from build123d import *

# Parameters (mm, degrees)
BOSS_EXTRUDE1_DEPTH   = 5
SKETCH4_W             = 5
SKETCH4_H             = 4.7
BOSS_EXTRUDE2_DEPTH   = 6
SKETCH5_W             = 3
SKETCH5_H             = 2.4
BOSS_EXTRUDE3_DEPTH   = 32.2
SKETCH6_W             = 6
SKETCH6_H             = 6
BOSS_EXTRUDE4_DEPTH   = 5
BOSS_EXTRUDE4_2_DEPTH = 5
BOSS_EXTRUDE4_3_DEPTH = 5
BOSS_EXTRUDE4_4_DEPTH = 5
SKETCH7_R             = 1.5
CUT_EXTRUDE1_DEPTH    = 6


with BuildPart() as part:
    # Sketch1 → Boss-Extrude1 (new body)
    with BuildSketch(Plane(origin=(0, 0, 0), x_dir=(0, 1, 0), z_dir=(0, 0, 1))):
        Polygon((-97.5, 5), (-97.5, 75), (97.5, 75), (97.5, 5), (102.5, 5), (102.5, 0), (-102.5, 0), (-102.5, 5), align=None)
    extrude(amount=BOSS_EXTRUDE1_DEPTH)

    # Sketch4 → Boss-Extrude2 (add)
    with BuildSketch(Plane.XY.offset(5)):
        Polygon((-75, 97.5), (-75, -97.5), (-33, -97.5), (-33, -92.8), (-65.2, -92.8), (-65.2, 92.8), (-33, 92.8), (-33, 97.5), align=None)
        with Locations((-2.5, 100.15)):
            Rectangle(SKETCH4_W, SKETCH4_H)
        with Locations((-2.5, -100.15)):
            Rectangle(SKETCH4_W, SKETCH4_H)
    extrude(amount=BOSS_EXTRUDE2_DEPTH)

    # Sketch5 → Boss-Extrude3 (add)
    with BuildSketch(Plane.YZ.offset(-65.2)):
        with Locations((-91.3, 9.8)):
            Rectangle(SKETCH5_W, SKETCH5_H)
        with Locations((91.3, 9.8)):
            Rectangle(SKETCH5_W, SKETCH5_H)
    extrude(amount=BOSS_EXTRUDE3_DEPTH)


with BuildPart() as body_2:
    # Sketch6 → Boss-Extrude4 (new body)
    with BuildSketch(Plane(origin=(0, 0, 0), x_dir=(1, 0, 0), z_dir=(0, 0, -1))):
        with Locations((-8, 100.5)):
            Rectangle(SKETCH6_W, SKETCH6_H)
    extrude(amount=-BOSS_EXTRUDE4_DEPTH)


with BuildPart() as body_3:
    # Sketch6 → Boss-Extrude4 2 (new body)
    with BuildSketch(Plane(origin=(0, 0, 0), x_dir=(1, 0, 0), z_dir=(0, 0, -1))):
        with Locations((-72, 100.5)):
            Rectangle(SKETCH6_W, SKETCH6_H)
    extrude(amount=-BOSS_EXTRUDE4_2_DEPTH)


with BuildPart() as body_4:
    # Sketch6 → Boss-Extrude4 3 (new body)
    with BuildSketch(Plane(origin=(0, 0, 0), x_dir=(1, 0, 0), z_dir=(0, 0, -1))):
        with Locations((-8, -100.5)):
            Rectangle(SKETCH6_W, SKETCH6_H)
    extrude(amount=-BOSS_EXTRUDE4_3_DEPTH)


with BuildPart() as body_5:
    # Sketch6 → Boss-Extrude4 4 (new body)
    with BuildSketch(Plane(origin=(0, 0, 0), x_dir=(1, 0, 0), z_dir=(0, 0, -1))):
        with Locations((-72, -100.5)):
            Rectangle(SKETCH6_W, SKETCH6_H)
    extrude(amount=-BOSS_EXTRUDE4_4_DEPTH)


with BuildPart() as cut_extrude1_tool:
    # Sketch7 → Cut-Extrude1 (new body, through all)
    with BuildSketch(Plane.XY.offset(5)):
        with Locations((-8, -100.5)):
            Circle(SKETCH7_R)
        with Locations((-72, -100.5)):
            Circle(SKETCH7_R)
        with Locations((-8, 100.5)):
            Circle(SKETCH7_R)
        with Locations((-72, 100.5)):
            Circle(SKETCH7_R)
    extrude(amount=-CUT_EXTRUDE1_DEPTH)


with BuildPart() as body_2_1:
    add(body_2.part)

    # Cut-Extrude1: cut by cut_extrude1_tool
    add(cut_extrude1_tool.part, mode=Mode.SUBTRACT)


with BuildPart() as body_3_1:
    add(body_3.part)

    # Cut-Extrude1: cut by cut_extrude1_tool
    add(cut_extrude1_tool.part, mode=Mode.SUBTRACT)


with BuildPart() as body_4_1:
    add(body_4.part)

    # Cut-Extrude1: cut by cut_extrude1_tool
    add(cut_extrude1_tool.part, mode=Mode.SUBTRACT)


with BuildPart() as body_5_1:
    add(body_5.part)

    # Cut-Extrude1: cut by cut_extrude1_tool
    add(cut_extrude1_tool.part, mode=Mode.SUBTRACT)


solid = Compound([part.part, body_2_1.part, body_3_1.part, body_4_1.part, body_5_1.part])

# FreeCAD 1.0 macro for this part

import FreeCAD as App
import Part
import Sketcher


def add_polygon(sketch, points):
    """Adds a closed chain of lines whose ends are joined by coincident constraints."""
    first, n = sketch.GeometryCount, len(points)
    for a, b in zip(points, points[1:] + points[:1]):
        sketch.addGeometry(Part.LineSegment(App.Vector(*a, 0), App.Vector(*b, 0)), False)
    for i in range(n):
        sketch.addConstraint(Sketcher.Constraint("Coincident", first + i, 2, first + (i + 1) % n, 1))

doc = App.newDocument("Part")
body = doc.addObject("PartDesign::Body", "Body")

# Sketch on XY plane
sketch1 = body.newObject("Sketcher::SketchObject", "Sketch")
sketch1.AttachmentSupport = (doc.getObject("XY_Plane"), [""])
sketch1.MapMode = "FlatFace"
add_polygon(sketch1, [(-75, -97.5), (-5, -97.5), (-5, -102.5), (0, -102.5), (0, 102.5), (-5, 102.5), (-5, 97.5), (-75, 97.5)])  # lines 0-7
sketch1.addConstraint([
    Sketcher.Constraint("Horizontal", 0),
    Sketcher.Constraint("Vertical", 1),
    Sketcher.Constraint("Horizontal", 2),
    Sketcher.Constraint("Vertical", 3),
    Sketcher.Constraint("Horizontal", 4),
    Sketcher.Constraint("Vertical", 5),
    Sketcher.Constraint("Horizontal", 6),
    Sketcher.Constraint("Vertical", 7),
    Sketcher.Constraint("Symmetric", 2, 2, 3, 2, -1, 1),
    Sketcher.Constraint("Symmetric", 0, 2, 5, 2, -1),
    Sketcher.Constraint("Equal", 4, 1),
    Sketcher.Constraint("DistanceX", 0, 1, 0, 2, 70.0),
    Sketcher.Constraint("DistanceX", 2, 1, 2, 2, 5.0),
    Sketcher.Constraint("DistanceY", 3, 1, 3, 2, 205.0),
])
pad1 = body.newObject("PartDesign::Pad", "Pad")
pad1.Profile = sketch1
pad1.Length = 5

# Sketch on XY plane
sketch2 = body.newObject("Sketcher::SketchObject", "Sketch001")
sketch2.AttachmentSupport = (doc.getObject("XY_Plane"), [""])
sketch2.MapMode = "FlatFace"
sketch2.AttachmentOffset = App.Placement(App.Vector(0, 0, 5), App.Rotation())
add_polygon(sketch2, [(-75, 97.5), (-75, -97.5), (-33, -97.5), (-33, -92.8), (-65.2, -92.8), (-65.2, 92.8), (-33, 92.8), (-33, 97.5)])  # lines 0-7
add_polygon(sketch2, [(-5, 102.5), (-5, 97.8), (0, 97.8), (0, 102.5)])  # lines 8-11
add_polygon(sketch2, [(-5, -97.8), (-5, -102.5), (0, -102.5), (0, -97.8)])  # lines 12-15
sketch2.addConstraint([
    Sketcher.Constraint("Vertical", 0),
    Sketcher.Constraint("Horizontal", 1),
    Sketcher.Constraint("Vertical", 2),
    Sketcher.Constraint("Horizontal", 3),
    Sketcher.Constraint("Vertical", 4),
    Sketcher.Constraint("Horizontal", 5),
    Sketcher.Constraint("Vertical", 6),
    Sketcher.Constraint("Horizontal", 7),
    Sketcher.Constraint("Vertical", 8),
    Sketcher.Constraint("Horizontal", 9),
    Sketcher.Constraint("Vertical", 10),
    Sketcher.Constraint("Horizontal", 11),
    Sketcher.Constraint("Vertical", 12),
    Sketcher.Constraint("Horizontal", 13),
    Sketcher.Constraint("Vertical", 14),
    Sketcher.Constraint("Horizontal", 15),
    Sketcher.Constraint("Symmetric", 10, 2, 13, 2, -1, 1),
    Sketcher.Constraint("Symmetric", 2, 2, 5, 2, -1),
    Sketcher.Constraint("Symmetric", 9, 2, 14, 2, -1),
    Sketcher.Constraint("Vertical", 11, 2, 12, 2),
    Sketcher.Constraint("Equal", 2, 6),
    Sketcher.Constraint("Equal", 6, 8),
    Sketcher.Constraint("DistanceX", 1, 1, 1, 2, 42.0),
    Sketcher.Constraint("DistanceX", 9, 1, 9, 2, 5.0),
    Sketcher.Constraint("DistanceY", 0, 2, 0, 1, 195.0),
    Sketcher.Constraint("DistanceX", 3, 2, 3, 1, 32.2),
    Sketcher.Constraint("DistanceY", 2, 1, 2, 2, 4.7),
    Sketcher.Constraint("DistanceX", 0, 2, -1, 1, 75.0),
    Sketcher.Constraint("DistanceY", 5, 2, 8, 2, 5.0),
])
pad2 = body.newObject("PartDesign::Pad", "Pad001")
pad2.Profile = sketch2
pad2.Length = 6

# Sketch on YZ plane
sketch3 = body.newObject("Sketcher::SketchObject", "Sketch002")
sketch3.AttachmentSupport = (doc.getObject("YZ_Plane"), [""])
sketch3.MapMode = "FlatFace"
sketch3.AttachmentOffset = App.Placement(App.Vector(0, 0, -65.2), App.Rotation())
add_polygon(sketch3, [(-92.8, 11), (-92.8, 8.6), (-89.8, 8.6), (-89.8, 11)])  # lines 0-3
add_polygon(sketch3, [(89.8, 11), (89.8, 8.6), (92.8, 8.6), (92.8, 11)])  # lines 4-7
sketch3.addConstraint([
    Sketcher.Constraint("Vertical", 0),
    Sketcher.Constraint("Horizontal", 1),
    Sketcher.Constraint("Vertical", 2),
    Sketcher.Constraint("Horizontal", 3),
    Sketcher.Constraint("Vertical", 4),
    Sketcher.Constraint("Horizontal", 5),
    Sketcher.Constraint("Vertical", 6),
    Sketcher.Constraint("Horizontal", 7),
    Sketcher.Constraint("Symmetric", 1, 2, 4, 2, -2),
    Sketcher.Constraint("Symmetric", 3, 2, 6, 2, -2),
    Sketcher.Constraint("DistanceX", 1, 1, 1, 2, 3.0),
    Sketcher.Constraint("DistanceY", 0, 2, 0, 1, 2.4),
    Sketcher.Constraint("DistanceY", -1, 1, 2, 2, 11.0),
    Sketcher.Constraint("DistanceX", 0, 2, -1, 1, 92.8),
])
pad3 = body.newObject("PartDesign::Pad", "Pad002")
pad3.Profile = sketch3
pad3.Length = 32.2
body2 = doc.addObject("PartDesign::Body", "Body001")

# Sketch on XY plane
sketch4 = body2.newObject("Sketcher::SketchObject", "Sketch003")
sketch4.AttachmentSupport = (doc.getObject("XY_Plane001"), [""])
sketch4.MapMode = "FlatFace"
add_polygon(sketch4, [(-11, -103.5), (-11, -97.5), (-5, -97.5), (-5, -103.5)])  # lines 0-3
sketch4.addConstraint([
    Sketcher.Constraint("Vertical", 0),
    Sketcher.Constraint("Horizontal", 1),
    Sketcher.Constraint("Vertical", 2),
    Sketcher.Constraint("Horizontal", 3),
    Sketcher.Constraint("Equal", 3, 0),
    Sketcher.Constraint("DistanceX", 1, 1, 1, 2, 6.0),
    Sketcher.Constraint("DistanceX", 0, 2, -1, 1, 11.0),
    Sketcher.Constraint("DistanceY", 0, 2, -1, 1, 97.5),
])
pad4 = body2.newObject("PartDesign::Pad", "Pad003")
pad4.Profile = sketch4
pad4.Length = 5
body3 = doc.addObject("PartDesign::Body", "Body002")

# Sketch on XY plane
sketch5 = body3.newObject("Sketcher::SketchObject", "Sketch004")
sketch5.AttachmentSupport = (doc.getObject("XY_Plane002"), [""])
sketch5.MapMode = "FlatFace"
add_polygon(sketch5, [(-75, -103.5), (-75, -97.5), (-69, -97.5), (-69, -103.5)])  # lines 0-3
sketch5.addConstraint([
    Sketcher.Constraint("Vertical", 0),
    Sketcher.Constraint("Horizontal", 1),
    Sketcher.Constraint("Vertical", 2),
    Sketcher.Constraint("Horizontal", 3),
    Sketcher.Constraint("Equal", 3, 0),
    Sketcher.Constraint("DistanceX", 1, 1, 1, 2, 6.0),
    Sketcher.Constraint("DistanceX", 0, 2, -1, 1, 75.0),
    Sketcher.Constraint("DistanceY", 0, 2, -1, 1, 97.5),
])
pad5 = body3.newObject("PartDesign::Pad", "Pad004")
pad5.Profile = sketch5
pad5.Length = 5
body4 = doc.addObject("PartDesign::Body", "Body003")

# Sketch on XY plane
sketch6 = body4.newObject("Sketcher::SketchObject", "Sketch005")
sketch6.AttachmentSupport = (doc.getObject("XY_Plane003"), [""])
sketch6.MapMode = "FlatFace"
add_polygon(sketch6, [(-11, 97.5), (-11, 103.5), (-5, 103.5), (-5, 97.5)])  # lines 0-3
sketch6.addConstraint([
    Sketcher.Constraint("Vertical", 0),
    Sketcher.Constraint("Horizontal", 1),
    Sketcher.Constraint("Vertical", 2),
    Sketcher.Constraint("Horizontal", 3),
    Sketcher.Constraint("Equal", 3, 0),
    Sketcher.Constraint("DistanceX", 1, 1, 1, 2, 6.0),
    Sketcher.Constraint("DistanceX", 0, 2, -1, 1, 11.0),
    Sketcher.Constraint("DistanceY", -1, 1, 0, 2, 103.5),
])
pad6 = body4.newObject("PartDesign::Pad", "Pad005")
pad6.Profile = sketch6
pad6.Length = 5
body5 = doc.addObject("PartDesign::Body", "Body004")

# Sketch on XY plane
sketch7 = body5.newObject("Sketcher::SketchObject", "Sketch006")
sketch7.AttachmentSupport = (doc.getObject("XY_Plane004"), [""])
sketch7.MapMode = "FlatFace"
add_polygon(sketch7, [(-75, 97.5), (-75, 103.5), (-69, 103.5), (-69, 97.5)])  # lines 0-3
sketch7.addConstraint([
    Sketcher.Constraint("Vertical", 0),
    Sketcher.Constraint("Horizontal", 1),
    Sketcher.Constraint("Vertical", 2),
    Sketcher.Constraint("Horizontal", 3),
    Sketcher.Constraint("Equal", 3, 0),
    Sketcher.Constraint("DistanceX", 1, 1, 1, 2, 6.0),
    Sketcher.Constraint("DistanceX", 0, 2, -1, 1, 75.0),
    Sketcher.Constraint("DistanceY", -1, 1, 0, 2, 103.5),
])
pad7 = body5.newObject("PartDesign::Pad", "Pad006")
pad7.Profile = sketch7
pad7.Length = 5
body6 = doc.addObject("PartDesign::Body", "Body005")
body6.AllowCompound = True

# Sketch on XY plane
sketch8 = body6.newObject("Sketcher::SketchObject", "Sketch007")
sketch8.AttachmentSupport = (doc.getObject("XY_Plane005"), [""])
sketch8.MapMode = "FlatFace"
sketch8.AttachmentOffset = App.Placement(App.Vector(0, 0, 5), App.Rotation())
sketch8.addGeometry([
    Part.Circle(App.Vector(-8, -100.5, 0), App.Vector(0, 0, 1), 1.5),
    Part.Circle(App.Vector(-72, -100.5, 0), App.Vector(0, 0, 1), 1.5),
    Part.Circle(App.Vector(-8, 100.5, 0), App.Vector(0, 0, 1), 1.5),
    Part.Circle(App.Vector(-72, 100.5, 0), App.Vector(0, 0, 1), 1.5),
], False)
sketch8.addConstraint([
    Sketcher.Constraint("Equal", 0, 1),
    Sketcher.Constraint("Equal", 1, 2),
    Sketcher.Constraint("Equal", 2, 3),
    Sketcher.Constraint("Symmetric", 0, 3, 2, 3, -1),
    Sketcher.Constraint("Symmetric", 1, 3, 3, 3, -1),
    Sketcher.Constraint("Horizontal", 0, 3, 1, 3),
    Sketcher.Constraint("Diameter", 0, 3.0),
    Sketcher.Constraint("DistanceX", 0, 3, -1, 1, 8.0),
    Sketcher.Constraint("DistanceX", 1, 3, -1, 1, 72.0),
    Sketcher.Constraint("DistanceY", 0, 3, 2, 3, 201.0),
])
pad8 = body6.newObject("PartDesign::Pad", "Pad007")
pad8.Profile = sketch8
pad8.Length = 6
pad8.Reversed = True
doc.recompute()

body7 = doc.addObject("PartDesign::Body", "Body006")
body7.BaseFeature = body6
boolean = body2.newObject("PartDesign::Boolean", "Boolean")
boolean.Type = "Cut"
boolean.addObjects([body7])
doc.recompute()

body8 = doc.addObject("PartDesign::Body", "Body007")
body8.BaseFeature = body6
boolean2 = body3.newObject("PartDesign::Boolean", "Boolean001")
boolean2.Type = "Cut"
boolean2.addObjects([body8])
doc.recompute()

body9 = doc.addObject("PartDesign::Body", "Body008")
body9.BaseFeature = body6
boolean3 = body4.newObject("PartDesign::Boolean", "Boolean002")
boolean3.Type = "Cut"
boolean3.addObjects([body9])
doc.recompute()

boolean4 = body5.newObject("PartDesign::Boolean", "Boolean003")
boolean4.Type = "Cut"
boolean4.addObjects([body6])

doc.recompute()
